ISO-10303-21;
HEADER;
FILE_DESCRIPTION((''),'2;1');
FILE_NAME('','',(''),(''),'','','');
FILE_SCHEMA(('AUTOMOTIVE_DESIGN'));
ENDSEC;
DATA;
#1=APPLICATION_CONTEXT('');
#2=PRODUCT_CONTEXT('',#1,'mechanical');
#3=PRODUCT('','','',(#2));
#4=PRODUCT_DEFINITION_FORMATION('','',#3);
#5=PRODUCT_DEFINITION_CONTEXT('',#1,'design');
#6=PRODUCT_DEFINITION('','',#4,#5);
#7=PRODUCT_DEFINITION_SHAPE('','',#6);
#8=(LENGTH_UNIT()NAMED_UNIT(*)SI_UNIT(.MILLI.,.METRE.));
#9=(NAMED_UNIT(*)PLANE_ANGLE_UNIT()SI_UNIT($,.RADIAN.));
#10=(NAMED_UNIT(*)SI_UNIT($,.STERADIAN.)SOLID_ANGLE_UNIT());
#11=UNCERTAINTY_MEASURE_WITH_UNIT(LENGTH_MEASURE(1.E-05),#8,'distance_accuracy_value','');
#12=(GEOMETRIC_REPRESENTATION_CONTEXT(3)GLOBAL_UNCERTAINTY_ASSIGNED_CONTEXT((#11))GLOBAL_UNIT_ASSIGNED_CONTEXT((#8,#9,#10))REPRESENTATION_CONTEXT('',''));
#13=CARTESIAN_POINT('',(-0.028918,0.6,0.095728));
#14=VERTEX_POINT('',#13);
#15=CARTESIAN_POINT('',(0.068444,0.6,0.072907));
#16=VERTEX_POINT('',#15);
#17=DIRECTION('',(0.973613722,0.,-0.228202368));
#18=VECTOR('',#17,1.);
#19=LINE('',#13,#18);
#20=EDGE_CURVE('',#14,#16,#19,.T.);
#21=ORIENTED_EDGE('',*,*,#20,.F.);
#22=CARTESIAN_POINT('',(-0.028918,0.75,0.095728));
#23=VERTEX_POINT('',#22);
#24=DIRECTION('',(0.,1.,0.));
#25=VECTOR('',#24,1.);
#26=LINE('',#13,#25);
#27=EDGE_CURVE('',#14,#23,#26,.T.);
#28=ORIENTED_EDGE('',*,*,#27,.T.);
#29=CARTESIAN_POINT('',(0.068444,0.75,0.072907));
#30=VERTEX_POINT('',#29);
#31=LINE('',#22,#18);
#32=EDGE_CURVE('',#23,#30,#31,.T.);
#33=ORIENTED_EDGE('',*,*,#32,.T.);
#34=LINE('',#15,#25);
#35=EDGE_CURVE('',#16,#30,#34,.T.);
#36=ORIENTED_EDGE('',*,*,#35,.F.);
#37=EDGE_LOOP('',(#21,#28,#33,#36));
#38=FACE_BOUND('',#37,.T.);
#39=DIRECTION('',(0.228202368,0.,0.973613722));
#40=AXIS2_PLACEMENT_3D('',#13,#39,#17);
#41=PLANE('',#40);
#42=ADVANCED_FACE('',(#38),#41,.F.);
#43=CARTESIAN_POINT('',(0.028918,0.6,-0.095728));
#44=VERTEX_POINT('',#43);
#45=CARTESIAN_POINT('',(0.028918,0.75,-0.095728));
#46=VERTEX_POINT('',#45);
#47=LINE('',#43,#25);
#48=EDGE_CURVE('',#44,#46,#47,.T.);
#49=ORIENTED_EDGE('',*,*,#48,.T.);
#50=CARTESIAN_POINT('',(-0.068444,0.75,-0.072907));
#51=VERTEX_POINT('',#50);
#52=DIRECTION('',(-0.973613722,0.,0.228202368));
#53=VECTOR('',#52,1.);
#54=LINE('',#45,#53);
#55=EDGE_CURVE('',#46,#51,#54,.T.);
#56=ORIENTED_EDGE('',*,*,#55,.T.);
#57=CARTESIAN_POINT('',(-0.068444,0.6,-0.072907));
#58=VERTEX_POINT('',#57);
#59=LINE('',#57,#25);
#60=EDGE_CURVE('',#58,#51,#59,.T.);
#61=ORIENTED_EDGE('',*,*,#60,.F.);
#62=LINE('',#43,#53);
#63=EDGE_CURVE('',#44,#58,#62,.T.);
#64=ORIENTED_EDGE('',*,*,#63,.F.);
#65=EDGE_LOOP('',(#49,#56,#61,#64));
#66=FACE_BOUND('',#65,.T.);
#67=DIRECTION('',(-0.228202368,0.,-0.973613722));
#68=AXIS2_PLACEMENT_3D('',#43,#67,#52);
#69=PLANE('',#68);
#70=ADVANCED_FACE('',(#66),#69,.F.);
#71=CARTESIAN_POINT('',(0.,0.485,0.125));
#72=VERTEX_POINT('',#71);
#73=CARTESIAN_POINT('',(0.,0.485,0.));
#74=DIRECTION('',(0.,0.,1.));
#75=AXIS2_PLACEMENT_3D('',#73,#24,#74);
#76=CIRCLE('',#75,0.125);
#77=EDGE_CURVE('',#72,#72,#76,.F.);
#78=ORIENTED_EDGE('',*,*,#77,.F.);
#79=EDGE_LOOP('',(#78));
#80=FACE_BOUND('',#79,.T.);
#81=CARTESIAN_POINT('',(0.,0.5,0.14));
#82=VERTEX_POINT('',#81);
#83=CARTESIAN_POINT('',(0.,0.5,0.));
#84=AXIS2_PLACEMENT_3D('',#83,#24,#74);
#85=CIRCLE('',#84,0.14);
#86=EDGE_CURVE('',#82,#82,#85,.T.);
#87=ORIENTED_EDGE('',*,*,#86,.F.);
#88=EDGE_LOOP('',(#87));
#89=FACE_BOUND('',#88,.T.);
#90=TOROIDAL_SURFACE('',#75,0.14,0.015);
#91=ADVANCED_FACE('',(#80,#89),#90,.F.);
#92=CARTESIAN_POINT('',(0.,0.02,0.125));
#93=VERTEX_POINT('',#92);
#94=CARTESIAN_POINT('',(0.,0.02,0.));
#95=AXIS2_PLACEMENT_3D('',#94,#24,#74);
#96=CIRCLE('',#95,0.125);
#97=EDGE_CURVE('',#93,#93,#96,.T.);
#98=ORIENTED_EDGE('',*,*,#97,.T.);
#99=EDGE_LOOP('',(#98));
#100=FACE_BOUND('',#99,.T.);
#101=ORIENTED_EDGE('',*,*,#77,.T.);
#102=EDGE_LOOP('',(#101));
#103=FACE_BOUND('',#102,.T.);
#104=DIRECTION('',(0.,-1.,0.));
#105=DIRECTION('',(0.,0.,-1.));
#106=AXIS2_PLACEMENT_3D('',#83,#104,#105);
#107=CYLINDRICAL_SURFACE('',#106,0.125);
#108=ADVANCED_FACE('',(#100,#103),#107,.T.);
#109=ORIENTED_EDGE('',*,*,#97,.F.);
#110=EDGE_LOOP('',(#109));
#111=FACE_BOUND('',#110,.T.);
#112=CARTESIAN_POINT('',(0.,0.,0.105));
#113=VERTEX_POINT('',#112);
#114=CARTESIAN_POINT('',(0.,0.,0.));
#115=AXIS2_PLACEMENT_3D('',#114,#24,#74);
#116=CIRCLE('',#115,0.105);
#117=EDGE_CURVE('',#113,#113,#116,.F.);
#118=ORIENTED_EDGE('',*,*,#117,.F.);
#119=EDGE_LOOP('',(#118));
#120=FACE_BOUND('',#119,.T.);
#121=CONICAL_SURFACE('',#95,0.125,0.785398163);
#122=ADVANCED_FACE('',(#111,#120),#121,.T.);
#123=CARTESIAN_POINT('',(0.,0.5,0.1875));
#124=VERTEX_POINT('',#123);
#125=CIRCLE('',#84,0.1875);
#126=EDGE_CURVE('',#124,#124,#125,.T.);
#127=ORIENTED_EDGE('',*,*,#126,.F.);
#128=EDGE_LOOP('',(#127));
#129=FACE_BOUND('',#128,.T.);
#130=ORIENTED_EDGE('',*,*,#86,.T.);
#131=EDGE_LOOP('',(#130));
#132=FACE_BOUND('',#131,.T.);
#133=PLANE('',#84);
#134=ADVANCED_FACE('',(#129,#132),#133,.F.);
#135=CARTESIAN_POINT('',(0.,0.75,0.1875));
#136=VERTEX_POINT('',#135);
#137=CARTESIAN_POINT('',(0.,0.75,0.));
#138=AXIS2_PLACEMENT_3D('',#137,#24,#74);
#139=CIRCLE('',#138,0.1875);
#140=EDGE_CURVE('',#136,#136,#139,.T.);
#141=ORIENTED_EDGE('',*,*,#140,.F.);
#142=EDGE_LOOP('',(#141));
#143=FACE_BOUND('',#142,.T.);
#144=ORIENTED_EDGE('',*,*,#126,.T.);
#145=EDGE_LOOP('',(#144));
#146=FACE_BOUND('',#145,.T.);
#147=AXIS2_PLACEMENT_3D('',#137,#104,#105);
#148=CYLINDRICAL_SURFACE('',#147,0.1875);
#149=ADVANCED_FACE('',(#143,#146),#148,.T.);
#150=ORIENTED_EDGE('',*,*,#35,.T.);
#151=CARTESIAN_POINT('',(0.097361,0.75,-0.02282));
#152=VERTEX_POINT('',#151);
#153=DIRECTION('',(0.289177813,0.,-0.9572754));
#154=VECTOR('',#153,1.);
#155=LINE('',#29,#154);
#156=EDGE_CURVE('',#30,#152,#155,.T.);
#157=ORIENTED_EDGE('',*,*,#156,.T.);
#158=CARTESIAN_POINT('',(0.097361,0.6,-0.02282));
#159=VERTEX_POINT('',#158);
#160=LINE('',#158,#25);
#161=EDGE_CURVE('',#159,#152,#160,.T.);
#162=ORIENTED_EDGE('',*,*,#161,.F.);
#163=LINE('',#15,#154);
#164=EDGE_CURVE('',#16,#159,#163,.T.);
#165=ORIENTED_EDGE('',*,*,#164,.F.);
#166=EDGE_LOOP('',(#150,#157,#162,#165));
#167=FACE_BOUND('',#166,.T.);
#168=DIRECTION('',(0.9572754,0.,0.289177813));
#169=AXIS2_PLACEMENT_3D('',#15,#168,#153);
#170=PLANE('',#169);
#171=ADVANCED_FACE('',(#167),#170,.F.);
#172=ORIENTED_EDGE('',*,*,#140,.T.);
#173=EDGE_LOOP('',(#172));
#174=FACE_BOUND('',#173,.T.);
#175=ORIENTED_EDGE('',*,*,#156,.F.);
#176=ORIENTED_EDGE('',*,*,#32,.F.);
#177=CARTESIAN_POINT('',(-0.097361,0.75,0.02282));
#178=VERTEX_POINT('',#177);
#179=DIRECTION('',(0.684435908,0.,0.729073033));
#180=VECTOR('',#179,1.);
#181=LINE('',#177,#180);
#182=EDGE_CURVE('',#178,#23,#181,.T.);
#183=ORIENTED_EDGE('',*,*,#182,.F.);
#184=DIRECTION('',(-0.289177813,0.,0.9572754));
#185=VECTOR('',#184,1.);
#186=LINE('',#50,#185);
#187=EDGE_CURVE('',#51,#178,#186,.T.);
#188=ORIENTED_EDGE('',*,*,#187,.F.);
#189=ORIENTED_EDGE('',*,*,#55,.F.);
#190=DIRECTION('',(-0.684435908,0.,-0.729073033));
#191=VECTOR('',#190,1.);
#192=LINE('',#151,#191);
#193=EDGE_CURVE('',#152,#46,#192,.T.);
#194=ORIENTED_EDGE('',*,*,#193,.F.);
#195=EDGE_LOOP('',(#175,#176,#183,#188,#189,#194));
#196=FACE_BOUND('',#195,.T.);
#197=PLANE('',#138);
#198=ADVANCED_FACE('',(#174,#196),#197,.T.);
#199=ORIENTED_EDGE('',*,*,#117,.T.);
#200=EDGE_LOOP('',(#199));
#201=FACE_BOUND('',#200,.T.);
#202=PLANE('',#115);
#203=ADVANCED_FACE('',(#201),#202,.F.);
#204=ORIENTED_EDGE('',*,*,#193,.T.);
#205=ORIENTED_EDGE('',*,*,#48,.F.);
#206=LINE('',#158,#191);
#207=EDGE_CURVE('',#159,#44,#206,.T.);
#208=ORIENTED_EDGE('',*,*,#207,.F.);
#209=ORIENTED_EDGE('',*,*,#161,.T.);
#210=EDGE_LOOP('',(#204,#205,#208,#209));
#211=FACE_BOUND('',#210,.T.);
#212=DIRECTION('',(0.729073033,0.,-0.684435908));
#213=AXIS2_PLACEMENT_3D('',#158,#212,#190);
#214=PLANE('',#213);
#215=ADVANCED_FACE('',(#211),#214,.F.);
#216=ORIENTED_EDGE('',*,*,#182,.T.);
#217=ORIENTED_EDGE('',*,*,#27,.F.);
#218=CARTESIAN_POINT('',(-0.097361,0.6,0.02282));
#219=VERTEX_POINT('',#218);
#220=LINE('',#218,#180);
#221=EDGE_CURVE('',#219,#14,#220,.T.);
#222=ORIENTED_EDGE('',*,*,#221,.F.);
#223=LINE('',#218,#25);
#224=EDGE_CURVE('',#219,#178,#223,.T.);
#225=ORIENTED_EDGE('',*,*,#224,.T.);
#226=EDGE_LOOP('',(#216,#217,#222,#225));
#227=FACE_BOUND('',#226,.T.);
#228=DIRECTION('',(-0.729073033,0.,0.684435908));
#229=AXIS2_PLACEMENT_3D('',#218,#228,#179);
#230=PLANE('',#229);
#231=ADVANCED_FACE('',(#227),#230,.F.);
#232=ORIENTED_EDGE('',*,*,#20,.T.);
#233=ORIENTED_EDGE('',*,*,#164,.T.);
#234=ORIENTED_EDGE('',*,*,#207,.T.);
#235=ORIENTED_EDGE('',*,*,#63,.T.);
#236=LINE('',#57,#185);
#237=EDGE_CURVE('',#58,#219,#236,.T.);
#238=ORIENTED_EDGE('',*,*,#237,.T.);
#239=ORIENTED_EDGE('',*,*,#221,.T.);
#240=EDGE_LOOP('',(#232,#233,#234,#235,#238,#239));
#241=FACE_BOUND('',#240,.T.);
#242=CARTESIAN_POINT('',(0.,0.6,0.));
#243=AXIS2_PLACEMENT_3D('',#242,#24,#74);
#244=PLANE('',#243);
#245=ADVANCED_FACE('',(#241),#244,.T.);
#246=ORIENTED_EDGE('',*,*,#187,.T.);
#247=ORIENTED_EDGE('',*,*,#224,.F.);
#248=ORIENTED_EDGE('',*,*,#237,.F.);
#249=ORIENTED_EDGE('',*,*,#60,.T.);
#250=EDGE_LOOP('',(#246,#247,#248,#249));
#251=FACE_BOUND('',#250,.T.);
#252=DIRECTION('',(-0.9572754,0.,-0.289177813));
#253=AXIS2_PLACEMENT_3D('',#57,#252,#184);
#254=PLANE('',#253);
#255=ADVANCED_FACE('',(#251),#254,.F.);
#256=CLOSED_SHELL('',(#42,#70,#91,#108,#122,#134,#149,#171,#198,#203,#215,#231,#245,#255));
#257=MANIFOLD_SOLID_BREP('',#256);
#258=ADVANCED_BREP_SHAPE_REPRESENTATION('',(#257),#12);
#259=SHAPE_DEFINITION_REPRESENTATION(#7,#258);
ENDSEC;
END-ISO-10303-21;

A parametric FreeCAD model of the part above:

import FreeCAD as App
import Part
import Sketcher
Q = App.Units.Quantity


def edges_at(feature, points):
    """Names of the edges that pass closest to the given points."""
    edges = feature.Shape.Edges
    near = lambda p: min(range(len(edges)), key=lambda i: edges[i].distToShape(Part.Vertex(*p))[0])
    return sorted({f"Edge{near(p) + 1}" for p in points})

doc = App.newDocument("Part")
body = doc.addObject("PartDesign::Body", "Body")

# Sketch on XZ plane
sketch1 = body.newObject("Sketcher::SketchObject", "Sketch")
sketch1.AttachmentSupport = (doc.getObject("XZ_Plane"), [""])
sketch1.MapMode = "FlatFace"
sketch1.addGeometry(Part.Circle(App.Vector(0, 0, 0), App.Vector(0, 0, 1), 0.19), False)
sketch1.addConstraint(Sketcher.Constraint("Coincident", 0, 3, -1, 1))
sketch1.addConstraint(Sketcher.Constraint("Diameter", 0, Q("0.375 mm")))
pad1 = body.newObject("PartDesign::Pad", "Pad")
pad1.Profile = sketch1
pad1.Length = 0.75
pad1.Reversed = True

# Sketch on XZ plane
sketch2 = body.newObject("Sketcher::SketchObject", "Sketch001")
sketch2.AttachmentSupport = (doc.getObject("XZ_Plane"), [""])
sketch2.MapMode = "FlatFace"
sketch2.AttachmentOffset = App.Placement(App.Vector(0, 0, -0.75), App.Rotation())
sketch2.addGeometry(Part.LineSegment(App.Vector(0.07, 0.07, 0), App.Vector(0.1, -0.02, 0)), False)
sketch2.addGeometry(Part.LineSegment(App.Vector(0.1, -0.02, 0), App.Vector(0.03, -0.1, 0)), False)
sketch2.addGeometry(Part.LineSegment(App.Vector(0.03, -0.1, 0), App.Vector(-0.07, -0.07, 0)), False)
sketch2.addGeometry(Part.LineSegment(App.Vector(-0.07, -0.07, 0), App.Vector(-0.1, 0.02, 0)), False)
sketch2.addGeometry(Part.LineSegment(App.Vector(-0.1, 0.02, 0), App.Vector(-0.03, 0.1, 0)), False)
sketch2.addGeometry(Part.LineSegment(App.Vector(-0.03, 0.1, 0), App.Vector(0.07, 0.07, 0)), False)
sketch2.addConstraint(Sketcher.Constraint("Coincident", 0, 2, 1, 1))
sketch2.addConstraint(Sketcher.Constraint("Coincident", 1, 2, 2, 1))
sketch2.addConstraint(Sketcher.Constraint("Coincident", 2, 2, 3, 1))
sketch2.addConstraint(Sketcher.Constraint("Coincident", 3, 2, 4, 1))
sketch2.addConstraint(Sketcher.Constraint("Coincident", 4, 2, 5, 1))
sketch2.addConstraint(Sketcher.Constraint("Coincident", 5, 2, 0, 1))
sketch2.addConstraint(Sketcher.Constraint("Symmetric", 0, 2, 3, 2, -1, 1))
sketch2.addConstraint(Sketcher.Constraint("Symmetric", 1, 2, 4, 2, -1, 1))
sketch2.addConstraint(Sketcher.Constraint("Symmetric", 2, 2, 5, 2, -1, 1))
sketch2.addConstraint(Sketcher.Constraint("Equal", 0, 1))
sketch2.addConstraint(Sketcher.Constraint("Equal", 1, 2))
sketch2.addConstraint(Sketcher.Constraint("Distance", 0, Q("0.1 mm")))
sketch2.addConstraint(Sketcher.Constraint("DistanceX", -1, 1, 0, 2, Q("0.097361 mm")))
sketch2.addConstraint(Sketcher.Constraint("DistanceY", 0, 2, -1, 1, Q("0.02282 mm")))
sketch2.addConstraint(Sketcher.Constraint("DistanceX", 2, 2, 1, 2, Q("0.097361 mm")))
pocket1 = body.newObject("PartDesign::Pocket", "Pocket")
pocket1.Profile = sketch2
pocket1.Length = 0.15
pocket1.Reversed = True

# Sketch on XZ plane
sketch3 = body.newObject("Sketcher::SketchObject", "Sketch002")
sketch3.AttachmentSupport = (doc.getObject("XZ_Plane"), [""])
sketch3.MapMode = "FlatFace"
sketch3.addGeometry(Part.Circle(App.Vector(0, 0, 0), App.Vector(0, 0, 1), 0.19), False)
sketch3.addGeometry(Part.Circle(App.Vector(0, 0, 0), App.Vector(0, 0, 1), 0.12), False)
sketch3.addConstraint(Sketcher.Constraint("Coincident", 0, 3, -1, 1))
sketch3.addConstraint(Sketcher.Constraint("Coincident", 1, 3, -1, 1))
sketch3.addConstraint(Sketcher.Constraint("Diameter", 1, Q("0.25 mm")))
sketch3.addConstraint(Sketcher.Constraint("Diameter", 0, Q("0.375 mm")))
pocket2 = body.newObject("PartDesign::Pocket", "Pocket001")
pocket2.Profile = sketch3
pocket2.Length = 0.5
doc.recompute()

chamfer = body.newObject("PartDesign::Chamfer", "Chamfer")
chamfer.Base = (pocket2, edges_at(pocket2, [(0, 0, -0.125)]))
chamfer.Size = 0.02
doc.recompute()

fillet = body.newObject("PartDesign::Fillet", "Fillet")
fillet.Base = (chamfer, edges_at(chamfer, [(0, 0.5, -0.125)]))
fillet.Radius = 0.015

doc.recompute()
